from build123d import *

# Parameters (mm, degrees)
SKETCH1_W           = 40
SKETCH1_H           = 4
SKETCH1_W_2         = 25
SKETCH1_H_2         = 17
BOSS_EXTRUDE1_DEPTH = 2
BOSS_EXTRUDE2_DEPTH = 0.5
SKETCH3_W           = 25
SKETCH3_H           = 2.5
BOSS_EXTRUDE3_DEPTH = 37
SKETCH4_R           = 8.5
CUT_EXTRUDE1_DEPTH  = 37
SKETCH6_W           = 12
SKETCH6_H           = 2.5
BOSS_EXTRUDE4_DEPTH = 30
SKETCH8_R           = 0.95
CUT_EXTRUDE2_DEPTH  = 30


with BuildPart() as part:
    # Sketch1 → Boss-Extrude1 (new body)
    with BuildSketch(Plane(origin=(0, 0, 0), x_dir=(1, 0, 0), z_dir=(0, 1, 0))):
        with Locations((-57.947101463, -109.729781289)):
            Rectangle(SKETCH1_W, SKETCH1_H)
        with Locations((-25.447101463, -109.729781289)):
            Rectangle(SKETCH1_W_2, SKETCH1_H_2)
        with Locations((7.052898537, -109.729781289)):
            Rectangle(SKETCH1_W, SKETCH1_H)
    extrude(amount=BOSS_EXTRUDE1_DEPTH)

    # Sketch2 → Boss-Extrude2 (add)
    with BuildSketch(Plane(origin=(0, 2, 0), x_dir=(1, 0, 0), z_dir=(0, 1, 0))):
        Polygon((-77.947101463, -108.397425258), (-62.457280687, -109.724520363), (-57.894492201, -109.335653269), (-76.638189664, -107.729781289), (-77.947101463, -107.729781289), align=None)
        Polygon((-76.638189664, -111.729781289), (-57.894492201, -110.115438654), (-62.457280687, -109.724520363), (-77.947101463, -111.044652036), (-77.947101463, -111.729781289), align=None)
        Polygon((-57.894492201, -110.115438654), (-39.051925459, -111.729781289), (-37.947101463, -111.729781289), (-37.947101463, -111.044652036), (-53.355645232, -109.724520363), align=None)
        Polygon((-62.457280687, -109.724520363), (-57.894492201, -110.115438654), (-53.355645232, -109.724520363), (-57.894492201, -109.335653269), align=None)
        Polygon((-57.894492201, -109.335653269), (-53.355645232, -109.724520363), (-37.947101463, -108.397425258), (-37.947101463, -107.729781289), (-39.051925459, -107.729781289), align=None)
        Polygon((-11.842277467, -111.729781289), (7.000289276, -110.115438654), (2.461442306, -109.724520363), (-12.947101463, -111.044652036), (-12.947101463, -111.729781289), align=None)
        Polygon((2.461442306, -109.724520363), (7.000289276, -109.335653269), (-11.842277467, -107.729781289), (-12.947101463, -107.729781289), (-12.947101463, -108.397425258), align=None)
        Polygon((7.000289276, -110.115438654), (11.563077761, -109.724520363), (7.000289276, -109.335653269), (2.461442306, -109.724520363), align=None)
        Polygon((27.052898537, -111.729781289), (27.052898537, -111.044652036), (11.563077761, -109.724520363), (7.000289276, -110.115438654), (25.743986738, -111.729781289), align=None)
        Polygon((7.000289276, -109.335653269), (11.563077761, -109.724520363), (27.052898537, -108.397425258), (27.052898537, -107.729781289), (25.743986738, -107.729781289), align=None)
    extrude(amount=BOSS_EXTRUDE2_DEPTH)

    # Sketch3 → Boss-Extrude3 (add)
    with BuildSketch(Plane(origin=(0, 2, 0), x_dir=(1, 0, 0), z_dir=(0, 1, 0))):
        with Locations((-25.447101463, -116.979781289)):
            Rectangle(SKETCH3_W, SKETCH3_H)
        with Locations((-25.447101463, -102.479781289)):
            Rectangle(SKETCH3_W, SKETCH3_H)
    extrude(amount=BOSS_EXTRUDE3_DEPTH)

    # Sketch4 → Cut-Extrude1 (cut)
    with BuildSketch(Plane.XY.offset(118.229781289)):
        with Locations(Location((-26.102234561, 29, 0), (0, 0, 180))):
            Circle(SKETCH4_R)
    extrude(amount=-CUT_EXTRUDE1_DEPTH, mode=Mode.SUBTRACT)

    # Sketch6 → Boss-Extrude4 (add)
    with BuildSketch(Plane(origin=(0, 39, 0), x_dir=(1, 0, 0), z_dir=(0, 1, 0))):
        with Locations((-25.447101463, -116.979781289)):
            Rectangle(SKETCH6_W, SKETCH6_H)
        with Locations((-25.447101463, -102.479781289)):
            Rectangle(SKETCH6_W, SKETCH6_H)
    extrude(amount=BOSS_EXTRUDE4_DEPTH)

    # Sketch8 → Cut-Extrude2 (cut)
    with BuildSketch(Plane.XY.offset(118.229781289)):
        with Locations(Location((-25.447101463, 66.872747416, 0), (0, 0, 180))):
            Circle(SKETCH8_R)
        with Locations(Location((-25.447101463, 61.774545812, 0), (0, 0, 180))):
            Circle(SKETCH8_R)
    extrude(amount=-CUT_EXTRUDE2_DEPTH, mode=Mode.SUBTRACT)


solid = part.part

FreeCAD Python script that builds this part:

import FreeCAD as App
import Part
import Sketcher
from FreeCAD import Vector


def add_polygon(sketch, points):
    """Adds a closed chain of lines whose ends are joined by coincident constraints."""
    first, n = sketch.GeometryCount, len(points)
    for a, b in zip(points, points[1:] + points[:1]):
        sketch.addGeometry(Part.LineSegment(App.Vector(*a, 0), App.Vector(*b, 0)), False)
    for i in range(n):
        sketch.addConstraint(Sketcher.Constraint("Coincident", first + i, 2, first + (i + 1) % n, 1))

doc = App.newDocument("Part")
body = doc.addObject("PartDesign::Body", "Body")

sketch1 = body.newObject("Sketcher::SketchObject", "Sketch")
sketch1.AttachmentSupport = (doc.getObject("XZ_Plane"), [""])
sketch1.MapMode = "FlatFace"
add_polygon(sketch1, [(-77.9, 107.7), (-77.9, 111.7), (-37.9, 111.7), (-37.9, 118.2), (-12.9, 118.2), (-12.9, 111.7), (27.1, 111.7), (27.1, 107.7), (-12.9, 107.7), (-12.9, 101.2), (-37.9, 101.2), (-37.9, 107.7)])
sketch1.addConstraint(Sketcher.Constraint("Vertical", 0))
sketch1.addConstraint(Sketcher.Constraint("Horizontal", 1))
sketch1.addConstraint(Sketcher.Constraint("Vertical", 2))
sketch1.addConstraint(Sketcher.Constraint("Horizontal", 3))
sketch1.addConstraint(Sketcher.Constraint("Vertical", 4))
sketch1.addConstraint(Sketcher.Constraint("Horizontal", 5))
sketch1.addConstraint(Sketcher.Constraint("Vertical", 6))
sketch1.addConstraint(Sketcher.Constraint("Horizontal", 7))
sketch1.addConstraint(Sketcher.Constraint("Vertical", 8))
sketch1.addConstraint(Sketcher.Constraint("Horizontal", 9))
sketch1.addConstraint(Sketcher.Constraint("Vertical", 10))
sketch1.addConstraint(Sketcher.Constraint("Horizontal", 11))
sketch1.addConstraint(Sketcher.Constraint("Horizontal", 1, 2, 4, 2))
sketch1.addConstraint(Sketcher.Constraint("Horizontal", 7, 2, 10, 2))
sketch1.addConstraint(Sketcher.Constraint("Vertical", 4, 2, 7, 2))
sketch1.addConstraint(Sketcher.Constraint("Vertical", 2, 2, 9, 2))
sketch1.addConstraint(Sketcher.Constraint("Equal", 1, 5))
sketch1.addConstraint(Sketcher.Constraint("Equal", 4, 8))
sketch1.addConstraint(Sketcher.Constraint("DistanceX", 1, 1, 1, 2, 40.0))
sketch1.addConstraint(Sketcher.Constraint("DistanceX", 3, 1, 3, 2, 25.0))
sketch1.addConstraint(Sketcher.Constraint("DistanceY", 0, 1, 0, 2, 4.0))
sketch1.addConstraint(Sketcher.Constraint("DistanceY", 2, 1, 2, 2, 6.5))
sketch1.addConstraint(Sketcher.Constraint("DistanceX", 0, 2, -1, 1, 77.947101))
sketch1.addConstraint(Sketcher.Constraint("DistanceY", -1, 1, 0, 2, 111.729781))
pad1 = body.newObject("PartDesign::Pad", "Pad")
pad1.Profile = sketch1
pad1.Length = 2
pad1.Reversed = True

sketch2 = body.newObject("Sketcher::SketchObject", "Sketch001")
sketch2.AttachmentSupport = (doc.getObject("XZ_Plane"), [""])
sketch2.MapMode = "FlatFace"
sketch2.AttachmentOffset = App.Placement(Vector(0, 0, -2), App.Rotation())
add_polygon(sketch2, [(-77.9, 108.4), (-62.5, 109.7), (-77.9, 111), (-77.9, 111.7), (-76.6, 111.7), (-57.9, 110.1), (-39.1, 111.7), (-37.9, 111.7), (-37.9, 111), (-53.4, 109.7), (-37.9, 108.4), (-37.9, 107.7), (-39.1, 107.7), (-57.9, 109.3), (-76.6, 107.7), (-77.9, 107.7)])
add_polygon(sketch2, [(-11.8, 111.7), (7, 110.1), (25.7, 111.7), (27.1, 111.7), (27.1, 111), (11.6, 109.7), (27.1, 108.4), (27.1, 107.7), (25.7, 107.7), (7, 109.3), (-11.8, 107.7), (-12.9, 107.7), (-12.9, 108.4), (2.5, 109.7), (-12.9, 111), (-12.9, 111.7)])
sketch2.addConstraint(Sketcher.Constraint("Vertical", 2))
sketch2.addConstraint(Sketcher.Constraint("Horizontal", 3))
sketch2.addConstraint(Sketcher.Constraint("Horizontal", 6))
sketch2.addConstraint(Sketcher.Constraint("Vertical", 7))
sketch2.addConstraint(Sketcher.Constraint("Vertical", 10))
sketch2.addConstraint(Sketcher.Constraint("Horizontal", 11))
sketch2.addConstraint(Sketcher.Constraint("Horizontal", 14))
sketch2.addConstraint(Sketcher.Constraint("Vertical", 15))
sketch2.addConstraint(Sketcher.Constraint("Horizontal", 18))
sketch2.addConstraint(Sketcher.Constraint("Vertical", 19))
sketch2.addConstraint(Sketcher.Constraint("Vertical", 22))
sketch2.addConstraint(Sketcher.Constraint("Horizontal", 23))
sketch2.addConstraint(Sketcher.Constraint("Horizontal", 26))
sketch2.addConstraint(Sketcher.Constraint("Vertical", 27))
sketch2.addConstraint(Sketcher.Constraint("Vertical", 30))
sketch2.addConstraint(Sketcher.Constraint("Horizontal", 31))
sketch2.addConstraint(Sketcher.Constraint("Parallel", 0, 5))
sketch2.addConstraint(Sketcher.Constraint("Parallel", 5, 8))
sketch2.addConstraint(Sketcher.Constraint("Parallel", 4, 9))
sketch2.addConstraint(Sketcher.Constraint("Parallel", 1, 12))
sketch2.addConstraint(Sketcher.Constraint("Parallel", 8, 13))
sketch2.addConstraint(Sketcher.Constraint("Parallel", 16, 21))
sketch2.addConstraint(Sketcher.Constraint("Parallel", 21, 24))
sketch2.addConstraint(Sketcher.Constraint("Parallel", 20, 25))
sketch2.addConstraint(Sketcher.Constraint("Parallel", 17, 28))
sketch2.addConstraint(Sketcher.Constraint("Parallel", 24, 29))
sketch2.addConstraint(Sketcher.Constraint("Horizontal", 3, 2, 5, 2))
sketch2.addConstraint(Sketcher.Constraint("Horizontal", 1, 2, 7, 2))
sketch2.addConstraint(Sketcher.Constraint("Horizontal", 0, 2, 8, 2))
sketch2.addConstraint(Sketcher.Constraint("Horizontal", 11, 2, 13, 2))
sketch2.addConstraint(Sketcher.Constraint("Horizontal", 9, 2, 15, 2))
sketch2.addConstraint(Sketcher.Constraint("Horizontal", 4, 2, 16, 2))
sketch2.addConstraint(Sketcher.Constraint("Horizontal", 6, 2, 17, 2))
sketch2.addConstraint(Sketcher.Constraint("Horizontal", 7, 2, 19, 2))
sketch2.addConstraint(Sketcher.Constraint("Horizontal", 8, 2, 20, 2))
sketch2.addConstraint(Sketcher.Constraint("Horizontal", 15, 2, 21, 2))
sketch2.addConstraint(Sketcher.Constraint("Horizontal", 14, 2, 22, 2))
sketch2.addConstraint(Sketcher.Constraint("Horizontal", 12, 2, 24, 2))
sketch2.addConstraint(Sketcher.Constraint("Horizontal", 23, 2, 25, 2))
sketch2.addConstraint(Sketcher.Constraint("Horizontal", 21, 2, 27, 2))
sketch2.addConstraint(Sketcher.Constraint("Horizontal", 20, 2, 28, 2))
sketch2.addConstraint(Sketcher.Constraint("Horizontal", 19, 2, 29, 2))
sketch2.addConstraint(Sketcher.Constraint("Horizontal", 18, 2, 30, 2))
sketch2.addConstraint(Sketcher.Constraint("Vertical", 7, 2, 9, 2))
sketch2.addConstraint(Sketcher.Constraint("Vertical", 5, 2, 11, 2))
sketch2.addConstraint(Sketcher.Constraint("Vertical", 4, 2, 12, 2))
sketch2.addConstraint(Sketcher.Constraint("Vertical", 3, 2, 13, 2))
sketch2.addConstraint(Sketcher.Constraint("Vertical", 19, 2, 21, 2))
sketch2.addConstraint(Sketcher.Constraint("Vertical", 17, 2, 23, 2))
sketch2.addConstraint(Sketcher.Constraint("Vertical", 16, 2, 24, 2))
sketch2.addConstraint(Sketcher.Constraint("Equal", 14, 18))
sketch2.addConstraint(Sketcher.Constraint("Equal", 11, 26))
sketch2.addConstraint(Sketcher.Constraint("Equal", 5, 16))
sketch2.addConstraint(Sketcher.Constraint("DistanceX", 2, 2, 6, 2, 40.0))
sketch2.addConstraint(Sketcher.Constraint("DistanceY", 10, 2, 6, 2, 4.0))
sketch2.addConstraint(Sketcher.Constraint("DistanceX", 6, 2, 18, 2, 65.0))
sketch2.addConstraint(Sketcher.Constraint("DistanceX", 3, 1, 3, 2, 1.308912))
sketch2.addConstraint(Sketcher.Constraint("DistanceY", 2, 1, 2, 2, 0.685129))
sketch2.addConstraint(Sketcher.Constraint("DistanceX", 1, 2, -1, 1, 77.947101))
sketch2.addConstraint(Sketcher.Constraint("Distance", 4, 18.813088))
sketch2.addConstraint(Sketcher.Constraint("Distance", 8, 15.464992))
sketch2.addConstraint(Sketcher.Constraint("DistanceX", 6, 1, 6, 2, 1.104824))
sketch2.addConstraint(Sketcher.Constraint("DistanceY", 10, 2, 10, 1, 0.667644))
sketch2.addConstraint(Sketcher.Constraint("DistanceY", -1, 1, 0, 2, 109.72452))
pad2 = body.newObject("PartDesign::Pad", "Pad001")
pad2.Profile = sketch2
pad2.Length = 0.5
pad2.Reversed = True

sketch3 = body.newObject("Sketcher::SketchObject", "Sketch002")
sketch3.AttachmentSupport = (doc.getObject("XZ_Plane"), [""])
sketch3.MapMode = "FlatFace"
sketch3.AttachmentOffset = App.Placement(Vector(0, 0, -2), App.Rotation())
add_polygon(sketch3, [(-37.9, 115.7), (-37.9, 118.2), (-12.9, 118.2), (-12.9, 115.7)])
add_polygon(sketch3, [(-37.9, 101.2), (-37.9, 103.7), (-12.9, 103.7), (-12.9, 101.2)])
sketch3.addConstraint(Sketcher.Constraint("Vertical", 0))
sketch3.addConstraint(Sketcher.Constraint("Horizontal", 1))
sketch3.addConstraint(Sketcher.Constraint("Vertical", 2))
sketch3.addConstraint(Sketcher.Constraint("Horizontal", 3))
sketch3.addConstraint(Sketcher.Constraint("Vertical", 4))
sketch3.addConstraint(Sketcher.Constraint("Horizontal", 5))
sketch3.addConstraint(Sketcher.Constraint("Vertical", 6))
sketch3.addConstraint(Sketcher.Constraint("Horizontal", 7))
sketch3.addConstraint(Sketcher.Constraint("Vertical", 3, 2, 4, 2))
sketch3.addConstraint(Sketcher.Constraint("Vertical", 2, 2, 5, 2))
sketch3.addConstraint(Sketcher.Constraint("Equal", 2, 4))
sketch3.addConstraint(Sketcher.Constraint("DistanceX", 1, 1, 1, 2, 25.0))
sketch3.addConstraint(Sketcher.Constraint("DistanceY", 0, 1, 0, 2, 2.5))
sketch3.addConstraint(Sketcher.Constraint("DistanceY", 4, 2, 3, 2, 12.0))
sketch3.addConstraint(Sketcher.Constraint("DistanceX", 0, 2, -1, 1, 37.947101))
sketch3.addConstraint(Sketcher.Constraint("DistanceY", -1, 1, 0, 2, 118.229781))
pad3 = body.newObject("PartDesign::Pad", "Pad002")
pad3.Profile = sketch3
pad3.Length = 37
pad3.Reversed = True

sketch4 = body.newObject("Sketcher::SketchObject", "Sketch003")
sketch4.AttachmentSupport = (doc.getObject("XY_Plane"), [""])
sketch4.MapMode = "FlatFace"
sketch4.AttachmentOffset = App.Placement(Vector(0, 0, 118.229781), App.Rotation())
sketch4.addGeometry(Part.Circle(Vector(-26, 29, 0), Vector(0, 0, 1), 8), False)
sketch4.addConstraint(Sketcher.Constraint("Diameter", 0, 17.0))
sketch4.addConstraint(Sketcher.Constraint("DistanceY", -1, 1, 0, 3, 29.0))
sketch4.addConstraint(Sketcher.Constraint("DistanceX", 0, 3, -1, 1, 26.102235))
pocket1 = body.newObject("PartDesign::Pocket", "Pocket")
pocket1.Profile = sketch4
pocket1.Length = 37

sketch5 = body.newObject("Sketcher::SketchObject", "Sketch004")
sketch5.AttachmentSupport = (doc.getObject("XZ_Plane"), [""])
sketch5.MapMode = "FlatFace"
sketch5.AttachmentOffset = App.Placement(Vector(0, 0, -39), App.Rotation())
add_polygon(sketch5, [(-31.4, 115.7), (-31.4, 118.2), (-19.4, 118.2), (-19.4, 115.7)])
add_polygon(sketch5, [(-31.4, 101.2), (-31.4, 103.7), (-19.4, 103.7), (-19.4, 101.2)])
sketch5.addConstraint(Sketcher.Constraint("Vertical", 0))
sketch5.addConstraint(Sketcher.Constraint("Horizontal", 1))
sketch5.addConstraint(Sketcher.Constraint("Vertical", 2))
sketch5.addConstraint(Sketcher.Constraint("Horizontal", 3))
sketch5.addConstraint(Sketcher.Constraint("Vertical", 4))
sketch5.addConstraint(Sketcher.Constraint("Horizontal", 5))
sketch5.addConstraint(Sketcher.Constraint("Vertical", 6))
sketch5.addConstraint(Sketcher.Constraint("Horizontal", 7))
sketch5.addConstraint(Sketcher.Constraint("Vertical", 3, 2, 4, 2))
sketch5.addConstraint(Sketcher.Constraint("Vertical", 2, 2, 5, 2))
sketch5.addConstraint(Sketcher.Constraint("Equal", 2, 4))
sketch5.addConstraint(Sketcher.Constraint("DistanceX", 1, 1, 1, 2, 12.0))
sketch5.addConstraint(Sketcher.Constraint("DistanceY", 0, 1, 0, 2, 2.5))
sketch5.addConstraint(Sketcher.Constraint("DistanceY", 4, 2, 3, 2, 12.0))
sketch5.addConstraint(Sketcher.Constraint("DistanceX", 0, 2, -1, 1, 31.447101))
sketch5.addConstraint(Sketcher.Constraint("DistanceY", -1, 1, 0, 2, 118.229781))
pad4 = body.newObject("PartDesign::Pad", "Pad003")
pad4.Profile = sketch5
pad4.Length = 30
pad4.Reversed = True

sketch6 = body.newObject("Sketcher::SketchObject", "Sketch005")
sketch6.AttachmentSupport = (doc.getObject("XY_Plane"), [""])
sketch6.MapMode = "FlatFace"
sketch6.AttachmentOffset = App.Placement(Vector(0, 0, 118.229781), App.Rotation())
sketch6.addGeometry(Part.Circle(Vector(-25.4, 66.9, 0), Vector(0, 0, 1), 0.9), False)
sketch6.addGeometry(Part.Circle(Vector(-25.4, 61.8, 0), Vector(0, 0, 1), 0.9), False)
sketch6.addConstraint(Sketcher.Constraint("Equal", 0, 1))
sketch6.addConstraint(Sketcher.Constraint("Vertical", 0, 3, 1, 3))
sketch6.addConstraint(Sketcher.Constraint("Diameter", 0, 1.9))
sketch6.addConstraint(Sketcher.Constraint("DistanceX", 0, 3, -1, 1, 25.447101))
sketch6.addConstraint(Sketcher.Constraint("DistanceY", 1, 3, 0, 3, 5.098202))
sketch6.addConstraint(Sketcher.Constraint("DistanceY", -1, 1, 0, 3, 66.872747))
pocket2 = body.newObject("PartDesign::Pocket", "Pocket001")
pocket2.Profile = sketch6
pocket2.Length = 30

doc.recompute()
